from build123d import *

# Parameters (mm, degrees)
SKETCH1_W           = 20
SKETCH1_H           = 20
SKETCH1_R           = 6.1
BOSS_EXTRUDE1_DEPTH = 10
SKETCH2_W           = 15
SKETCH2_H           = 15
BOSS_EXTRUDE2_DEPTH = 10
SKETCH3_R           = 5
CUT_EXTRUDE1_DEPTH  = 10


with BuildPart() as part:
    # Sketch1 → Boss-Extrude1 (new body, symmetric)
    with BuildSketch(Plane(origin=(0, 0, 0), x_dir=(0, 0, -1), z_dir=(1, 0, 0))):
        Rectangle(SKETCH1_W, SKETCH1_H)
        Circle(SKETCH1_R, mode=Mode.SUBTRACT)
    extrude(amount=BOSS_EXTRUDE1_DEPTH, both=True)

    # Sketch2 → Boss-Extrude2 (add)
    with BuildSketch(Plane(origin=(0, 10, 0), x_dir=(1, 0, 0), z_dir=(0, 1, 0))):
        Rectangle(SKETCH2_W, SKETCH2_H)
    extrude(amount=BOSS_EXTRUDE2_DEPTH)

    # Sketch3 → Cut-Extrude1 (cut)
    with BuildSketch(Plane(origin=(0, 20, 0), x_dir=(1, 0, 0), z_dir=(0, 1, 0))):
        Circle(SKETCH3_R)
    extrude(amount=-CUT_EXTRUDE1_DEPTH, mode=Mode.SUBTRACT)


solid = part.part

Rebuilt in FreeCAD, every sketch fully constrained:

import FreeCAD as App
import Part
import Sketcher
from FreeCAD import Vector
Q = App.Units.Quantity


def add_polygon(sketch, points):
    """Adds a closed chain of lines whose ends are joined by coincident constraints."""
    first, n = sketch.GeometryCount, len(points)
    for a, b in zip(points, points[1:] + points[:1]):
        sketch.addGeometry(Part.LineSegment(App.Vector(*a, 0), App.Vector(*b, 0)), False)
    for i in range(n):
        sketch.addConstraint(Sketcher.Constraint("Coincident", first + i, 2, first + (i + 1) % n, 1))

doc = App.newDocument("Part")
body = doc.addObject("PartDesign::Body", "Body")

# Sketch on YZ plane
sketch1 = body.newObject("Sketcher::SketchObject", "Sketch")
sketch1.AttachmentSupport = (doc.getObject("YZ_Plane"), [""])
sketch1.MapMode = "FlatFace"
add_polygon(sketch1, [(10, 10), (-10, 10), (-10, -10), (10, -10)])  # lines 0-3
sketch1.addGeometry(Part.Circle(Vector(0, 0, 0), Vector(0, 0, 1), 6), False)  # 4
sketch1.addConstraint([
    Sketcher.Constraint("Horizontal", 0),
    Sketcher.Constraint("Vertical", 1),
    Sketcher.Constraint("Horizontal", 2),
    Sketcher.Constraint("Vertical", 3),
    Sketcher.Constraint("Coincident", 4, 3, -1, 1),
    Sketcher.Constraint("Symmetric", 0, 2, 2, 2, -1, 1),
    Sketcher.Constraint("Equal", 2, 1),
    Sketcher.Constraint("Diameter", 4, Q("12.2 mm")),
    Sketcher.Constraint("DistanceX", 0, 2, 0, 1, Q("20 mm")),
])
pad1 = body.newObject("PartDesign::Pad", "Pad")
pad1.Profile = sketch1
pad1.Length = 20
pad1.Midplane = True

# Sketch on XZ plane
sketch2 = body.newObject("Sketcher::SketchObject", "Sketch001")
sketch2.AttachmentSupport = (doc.getObject("XZ_Plane"), [""])
sketch2.MapMode = "FlatFace"
sketch2.AttachmentOffset = App.Placement(Vector(0, 0, -10), App.Rotation())
add_polygon(sketch2, [(-8, -8), (-8, 8), (8, 8), (8, -8)])  # lines 0-3
sketch2.addConstraint([
    Sketcher.Constraint("Vertical", 0),
    Sketcher.Constraint("Horizontal", 1),
    Sketcher.Constraint("Vertical", 2),
    Sketcher.Constraint("Horizontal", 3),
    Sketcher.Constraint("Symmetric", 0, 2, 2, 2, -1, 1),
    Sketcher.Constraint("Equal", 3, 0),
    Sketcher.Constraint("DistanceX", 1, 1, 1, 2, Q("15 mm")),
])
pad2 = body.newObject("PartDesign::Pad", "Pad001")
pad2.Profile = sketch2
pad2.Length = 10
pad2.Reversed = True

# Sketch on XZ plane
sketch3 = body.newObject("Sketcher::SketchObject", "Sketch002")
sketch3.AttachmentSupport = (doc.getObject("XZ_Plane"), [""])
sketch3.MapMode = "FlatFace"
sketch3.AttachmentOffset = App.Placement(Vector(0, 0, -20), App.Rotation())
sketch3.addGeometry(Part.Circle(Vector(0, 0, 0), Vector(0, 0, 1), 5), False)
sketch3.addConstraint([
    Sketcher.Constraint("Coincident", 0, 3, -1, 1),
    Sketcher.Constraint("Diameter", 0, Q("10 mm")),
])
pocket1 = body.newObject("PartDesign::Pocket", "Pocket")
pocket1.Profile = sketch3
pocket1.Length = 10
pocket1.Reversed = True

doc.recompute()
